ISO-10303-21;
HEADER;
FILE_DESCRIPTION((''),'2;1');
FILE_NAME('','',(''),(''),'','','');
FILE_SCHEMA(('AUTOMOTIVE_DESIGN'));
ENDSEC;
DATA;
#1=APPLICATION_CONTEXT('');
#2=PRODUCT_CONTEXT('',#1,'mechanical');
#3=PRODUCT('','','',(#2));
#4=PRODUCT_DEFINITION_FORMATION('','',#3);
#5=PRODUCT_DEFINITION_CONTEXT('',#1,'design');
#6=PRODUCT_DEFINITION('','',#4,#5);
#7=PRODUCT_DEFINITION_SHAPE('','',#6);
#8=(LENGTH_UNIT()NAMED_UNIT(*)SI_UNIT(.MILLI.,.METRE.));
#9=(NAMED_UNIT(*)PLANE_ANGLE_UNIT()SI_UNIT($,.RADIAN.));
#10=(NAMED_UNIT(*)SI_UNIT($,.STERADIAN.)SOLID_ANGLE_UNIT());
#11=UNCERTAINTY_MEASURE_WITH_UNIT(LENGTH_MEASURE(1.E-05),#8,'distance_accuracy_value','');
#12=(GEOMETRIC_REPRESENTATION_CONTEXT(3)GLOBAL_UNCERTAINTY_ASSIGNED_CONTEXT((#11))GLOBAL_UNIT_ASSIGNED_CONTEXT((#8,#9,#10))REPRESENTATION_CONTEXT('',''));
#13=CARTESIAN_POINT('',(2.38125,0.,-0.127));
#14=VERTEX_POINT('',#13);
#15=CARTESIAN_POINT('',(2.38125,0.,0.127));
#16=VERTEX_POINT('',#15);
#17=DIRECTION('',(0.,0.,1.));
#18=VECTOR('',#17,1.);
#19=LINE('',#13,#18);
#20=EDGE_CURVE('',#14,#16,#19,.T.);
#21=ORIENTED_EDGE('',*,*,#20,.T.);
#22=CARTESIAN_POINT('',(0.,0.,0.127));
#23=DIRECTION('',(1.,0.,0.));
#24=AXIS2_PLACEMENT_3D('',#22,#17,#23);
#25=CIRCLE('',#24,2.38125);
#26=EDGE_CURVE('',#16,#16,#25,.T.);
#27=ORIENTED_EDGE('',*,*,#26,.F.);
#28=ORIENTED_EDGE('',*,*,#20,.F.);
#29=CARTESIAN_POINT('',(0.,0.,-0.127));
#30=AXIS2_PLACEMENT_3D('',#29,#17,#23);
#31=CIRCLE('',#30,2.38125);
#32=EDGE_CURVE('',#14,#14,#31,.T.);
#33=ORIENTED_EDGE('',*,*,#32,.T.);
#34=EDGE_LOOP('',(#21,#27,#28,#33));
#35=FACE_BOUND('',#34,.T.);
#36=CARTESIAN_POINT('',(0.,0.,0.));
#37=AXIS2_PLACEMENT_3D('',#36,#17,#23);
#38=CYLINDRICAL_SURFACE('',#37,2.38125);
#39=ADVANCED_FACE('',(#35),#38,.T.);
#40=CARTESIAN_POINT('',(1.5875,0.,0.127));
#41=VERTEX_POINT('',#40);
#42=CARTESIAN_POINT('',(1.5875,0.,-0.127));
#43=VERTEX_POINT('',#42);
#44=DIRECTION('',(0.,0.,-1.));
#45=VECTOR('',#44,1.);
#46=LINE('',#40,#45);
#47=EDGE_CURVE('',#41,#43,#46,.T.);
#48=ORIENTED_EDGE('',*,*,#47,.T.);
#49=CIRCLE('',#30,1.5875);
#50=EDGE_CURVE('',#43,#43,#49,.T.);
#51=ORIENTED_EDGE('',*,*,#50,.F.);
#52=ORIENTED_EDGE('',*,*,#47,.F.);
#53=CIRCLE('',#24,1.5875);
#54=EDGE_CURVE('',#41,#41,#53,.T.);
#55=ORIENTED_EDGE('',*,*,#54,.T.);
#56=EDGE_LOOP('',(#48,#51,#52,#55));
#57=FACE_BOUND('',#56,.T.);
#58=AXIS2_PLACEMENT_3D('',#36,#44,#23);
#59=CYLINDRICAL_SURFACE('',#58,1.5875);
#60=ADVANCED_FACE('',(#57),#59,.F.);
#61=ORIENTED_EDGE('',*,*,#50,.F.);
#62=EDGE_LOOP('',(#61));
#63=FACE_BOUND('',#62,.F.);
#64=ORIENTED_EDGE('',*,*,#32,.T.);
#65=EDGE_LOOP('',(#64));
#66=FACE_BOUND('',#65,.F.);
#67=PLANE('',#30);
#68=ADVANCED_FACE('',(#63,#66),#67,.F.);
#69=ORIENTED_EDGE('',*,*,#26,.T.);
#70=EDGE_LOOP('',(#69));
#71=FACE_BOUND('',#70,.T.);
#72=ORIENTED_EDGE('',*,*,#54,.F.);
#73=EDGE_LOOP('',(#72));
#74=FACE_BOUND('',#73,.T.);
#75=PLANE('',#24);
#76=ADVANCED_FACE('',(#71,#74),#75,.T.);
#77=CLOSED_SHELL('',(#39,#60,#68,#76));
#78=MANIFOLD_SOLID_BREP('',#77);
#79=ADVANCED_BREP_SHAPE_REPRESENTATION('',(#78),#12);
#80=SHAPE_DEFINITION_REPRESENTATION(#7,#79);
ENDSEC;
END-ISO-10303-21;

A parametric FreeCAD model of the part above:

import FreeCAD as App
import Part
import Sketcher
from FreeCAD import Vector
Q = App.Units.Quantity

doc = App.newDocument("Part")
params = doc.addObject("Spreadsheet::Sheet", "Params")
for row, (alias, value) in enumerate([
    ("sketch1_diameter", "0.1875 in"),
    ("sketch1_diameter2", "0.125 in"),
    ("pad1_length", "0.01 in"),
], start=1):
    params.set(f"A{row}", alias)
    params.set(f"B{row}", "=" + value)
    params.setAlias(f"B{row}", alias)

body = doc.addObject("PartDesign::Body", "Body")

# Sketch on XY plane
sketch1 = doc.addObject("Sketcher::SketchObject", "Sketch")
body.addObject(sketch1)
sketch1.AttachmentSupport = (doc.XY_Plane, [""])
sketch1.MapMode = "FlatFace"
sketch1.addGeometry([
    Part.Circle(Vector(0, 0, 0), Vector(0, 0, 1), 2.4),
    Part.Circle(Vector(0, 0, 0), Vector(0, 0, 1), 1.6),
], False)
sketch1.addConstraint([
    Sketcher.Constraint("Coincident", 0, 3, -1, 1),
    Sketcher.Constraint("Coincident", 1, 3, -1, 1),
    Sketcher.Constraint("Diameter", 0, Q("0.1875 in")),
    Sketcher.Constraint("Diameter", 1, Q("0.125 in")),
])
sketch1.setExpression("Constraints[2]", "Params.sketch1_diameter")
sketch1.setExpression("Constraints[3]", "Params.sketch1_diameter2")
pad1 = doc.addObject("PartDesign::Pad", "Pad")
body.addObject(pad1)
pad1.Profile = sketch1
pad1.setExpression("Length", "Params.pad1_length")
pad1.Midplane = True

doc.recompute()
